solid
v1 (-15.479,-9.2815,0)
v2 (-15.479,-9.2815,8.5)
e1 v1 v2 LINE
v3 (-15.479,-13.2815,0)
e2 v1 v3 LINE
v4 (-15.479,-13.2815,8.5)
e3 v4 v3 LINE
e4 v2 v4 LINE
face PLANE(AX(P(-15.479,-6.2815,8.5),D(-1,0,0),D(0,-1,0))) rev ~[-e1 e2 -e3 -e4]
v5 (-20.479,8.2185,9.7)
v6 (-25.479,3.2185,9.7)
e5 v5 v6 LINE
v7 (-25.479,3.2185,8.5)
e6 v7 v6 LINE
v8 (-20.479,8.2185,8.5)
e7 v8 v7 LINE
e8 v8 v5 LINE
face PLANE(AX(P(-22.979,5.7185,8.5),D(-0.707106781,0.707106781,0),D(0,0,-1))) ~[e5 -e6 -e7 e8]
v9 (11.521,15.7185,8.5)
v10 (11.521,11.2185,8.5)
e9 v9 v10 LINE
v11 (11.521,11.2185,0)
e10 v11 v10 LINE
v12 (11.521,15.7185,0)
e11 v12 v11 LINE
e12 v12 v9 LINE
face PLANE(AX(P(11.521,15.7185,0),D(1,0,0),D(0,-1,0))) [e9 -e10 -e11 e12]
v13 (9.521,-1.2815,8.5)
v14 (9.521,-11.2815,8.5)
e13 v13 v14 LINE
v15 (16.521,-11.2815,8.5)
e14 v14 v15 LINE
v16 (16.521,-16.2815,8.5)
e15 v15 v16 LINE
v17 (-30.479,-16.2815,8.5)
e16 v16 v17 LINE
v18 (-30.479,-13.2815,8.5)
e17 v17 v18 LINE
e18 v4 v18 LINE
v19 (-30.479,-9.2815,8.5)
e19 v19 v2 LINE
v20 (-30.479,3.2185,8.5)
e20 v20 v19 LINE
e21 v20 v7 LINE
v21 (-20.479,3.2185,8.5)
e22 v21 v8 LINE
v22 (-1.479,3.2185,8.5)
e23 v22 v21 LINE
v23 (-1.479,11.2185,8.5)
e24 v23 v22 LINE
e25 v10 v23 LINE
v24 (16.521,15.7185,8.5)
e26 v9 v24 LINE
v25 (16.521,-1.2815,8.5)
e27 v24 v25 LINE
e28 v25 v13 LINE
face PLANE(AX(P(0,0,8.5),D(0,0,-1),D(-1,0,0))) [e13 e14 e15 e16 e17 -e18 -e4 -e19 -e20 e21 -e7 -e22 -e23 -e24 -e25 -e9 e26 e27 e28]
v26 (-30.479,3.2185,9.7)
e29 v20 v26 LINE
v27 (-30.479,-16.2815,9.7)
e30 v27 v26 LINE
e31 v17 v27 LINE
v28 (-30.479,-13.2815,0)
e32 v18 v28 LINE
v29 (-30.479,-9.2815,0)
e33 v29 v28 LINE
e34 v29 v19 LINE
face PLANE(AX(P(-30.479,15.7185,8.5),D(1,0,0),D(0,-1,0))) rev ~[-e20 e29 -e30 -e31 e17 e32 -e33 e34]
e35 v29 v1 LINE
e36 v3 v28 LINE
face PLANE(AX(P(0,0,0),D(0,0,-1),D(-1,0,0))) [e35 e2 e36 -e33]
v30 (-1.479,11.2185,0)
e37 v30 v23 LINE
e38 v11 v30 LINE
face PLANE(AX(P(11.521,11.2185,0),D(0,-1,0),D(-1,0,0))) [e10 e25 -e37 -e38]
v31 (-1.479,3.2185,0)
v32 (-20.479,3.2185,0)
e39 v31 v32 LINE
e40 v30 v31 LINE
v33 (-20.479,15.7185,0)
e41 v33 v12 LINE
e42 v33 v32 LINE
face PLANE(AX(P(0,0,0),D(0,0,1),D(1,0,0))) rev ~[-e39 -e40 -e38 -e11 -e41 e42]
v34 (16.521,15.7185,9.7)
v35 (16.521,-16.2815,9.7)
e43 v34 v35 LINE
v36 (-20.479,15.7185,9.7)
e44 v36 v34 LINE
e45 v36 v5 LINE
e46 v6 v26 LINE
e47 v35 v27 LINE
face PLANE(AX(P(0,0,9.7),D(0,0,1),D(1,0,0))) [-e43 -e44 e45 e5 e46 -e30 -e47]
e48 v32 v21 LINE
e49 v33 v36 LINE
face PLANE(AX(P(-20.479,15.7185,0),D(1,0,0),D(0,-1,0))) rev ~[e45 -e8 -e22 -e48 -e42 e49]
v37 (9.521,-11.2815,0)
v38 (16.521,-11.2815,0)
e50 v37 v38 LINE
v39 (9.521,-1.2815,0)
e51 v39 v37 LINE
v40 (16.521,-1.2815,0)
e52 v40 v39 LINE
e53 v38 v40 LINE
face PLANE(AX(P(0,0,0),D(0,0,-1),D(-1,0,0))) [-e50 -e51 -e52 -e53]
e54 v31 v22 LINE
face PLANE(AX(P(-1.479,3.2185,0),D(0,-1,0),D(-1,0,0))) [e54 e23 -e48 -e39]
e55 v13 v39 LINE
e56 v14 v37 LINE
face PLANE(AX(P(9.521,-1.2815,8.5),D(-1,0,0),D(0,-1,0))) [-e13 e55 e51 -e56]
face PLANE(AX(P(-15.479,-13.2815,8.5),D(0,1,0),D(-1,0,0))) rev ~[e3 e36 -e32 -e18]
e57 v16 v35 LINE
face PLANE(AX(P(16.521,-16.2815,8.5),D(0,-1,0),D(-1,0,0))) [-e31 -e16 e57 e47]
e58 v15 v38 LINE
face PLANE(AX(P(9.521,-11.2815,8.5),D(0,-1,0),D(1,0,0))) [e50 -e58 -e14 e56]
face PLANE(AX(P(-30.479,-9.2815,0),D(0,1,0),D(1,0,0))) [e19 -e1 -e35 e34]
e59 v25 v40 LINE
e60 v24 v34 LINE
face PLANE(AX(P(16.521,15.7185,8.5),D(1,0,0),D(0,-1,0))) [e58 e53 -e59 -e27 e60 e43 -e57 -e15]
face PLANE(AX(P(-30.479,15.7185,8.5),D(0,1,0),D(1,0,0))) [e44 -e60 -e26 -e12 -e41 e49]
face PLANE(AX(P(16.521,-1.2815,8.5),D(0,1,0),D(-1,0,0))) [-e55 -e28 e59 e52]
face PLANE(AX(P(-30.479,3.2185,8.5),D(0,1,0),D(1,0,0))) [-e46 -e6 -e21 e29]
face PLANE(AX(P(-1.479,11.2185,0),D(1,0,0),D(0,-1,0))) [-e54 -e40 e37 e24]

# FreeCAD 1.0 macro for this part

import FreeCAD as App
import Part
import Sketcher
Q = App.Units.Quantity


def edges_at(feature, points):
    """Names of the edges that pass closest to the given points."""
    edges = feature.Shape.Edges
    near = lambda p: min(range(len(edges)), key=lambda i: edges[i].distToShape(Part.Vertex(*p))[0])
    return sorted({f"Edge{near(p) + 1}" for p in points})

doc = App.newDocument("Part")
params = doc.addObject("Spreadsheet::Sheet", "Params")
for row, (alias, value) in enumerate([
    ("sketch1_width", "42 mm"),
    ("sketch1_width2", "29 mm"),
    ("sketch1_height", "8 mm"),
    ("sketch1_height2", "4.5 mm"),
    ("pad1_length", "8.5 mm"),
    ("sketch2_width", "47 mm"),
    ("sketch2_height", "32 mm"),
    ("pad2_length", "1.2 mm"),
    ("sketch3_width", "15 mm"),
    ("sketch3_height", "7 mm"),
    ("pad3_length", "8.5 mm"),
    ("sketch4_width", "7 mm"),
    ("sketch4_height", "10 mm"),
    ("pad4_length", "8.5 mm"),
    ("sketch5_width", "10 mm"),
    ("sketch5_height", "12.5 mm"),
    ("pocket1_length", "8.5 mm"),
    ("sketch6_height", "3 mm"),
    ("sketch6_width", "15 mm"),
    ("pocket2_length", "8.5 mm"),
    ("sketch7_width", "10 mm"),
    ("sketch7_height", "12.5 mm"),
    ("pocket3_length", "8.5 mm"),
    ("chamfer_size", "5 mm"),
], start=1):
    params.set(f"A{row}", alias)
    params.set(f"B{row}", "=" + value)
    params.setAlias(f"B{row}", alias)

body = doc.addObject("PartDesign::Body", "Body")

# Sketch on XY plane
sketch1 = body.newObject("Sketcher::SketchObject", "Sketch")
sketch1.AttachmentSupport = (doc.getObject("XY_Plane"), [""])
sketch1.MapMode = "FlatFace"
sketch1.addGeometry(Part.LineSegment(App.Vector(11.521, 15.7185, 0), App.Vector(-30.479, 15.7185, 0)), False)
sketch1.addGeometry(Part.LineSegment(App.Vector(-30.479, 15.7185, 0), App.Vector(-30.479, 3.2185, 0)), False)
sketch1.addGeometry(Part.LineSegment(App.Vector(-30.479, 3.2185, 0), App.Vector(-1.479, 3.2185, 0)), False)
sketch1.addGeometry(Part.LineSegment(App.Vector(-1.479, 3.2185, 0), App.Vector(-1.479, 11.2185, 0)), False)
sketch1.addGeometry(Part.LineSegment(App.Vector(-1.479, 11.2185, 0), App.Vector(11.521, 11.2185, 0)), False)
sketch1.addGeometry(Part.LineSegment(App.Vector(11.521, 11.2185, 0), App.Vector(11.521, 15.7185, 0)), False)
sketch1.addConstraint(Sketcher.Constraint("Coincident", 0, 2, 1, 1))
sketch1.addConstraint(Sketcher.Constraint("Coincident", 1, 2, 2, 1))
sketch1.addConstraint(Sketcher.Constraint("Coincident", 2, 2, 3, 1))
sketch1.addConstraint(Sketcher.Constraint("Coincident", 3, 2, 4, 1))
sketch1.addConstraint(Sketcher.Constraint("Coincident", 4, 2, 5, 1))
sketch1.addConstraint(Sketcher.Constraint("Coincident", 5, 2, 0, 1))
sketch1.addConstraint(Sketcher.Constraint("Horizontal", 0))
sketch1.addConstraint(Sketcher.Constraint("Vertical", 1))
sketch1.addConstraint(Sketcher.Constraint("Horizontal", 2))
sketch1.addConstraint(Sketcher.Constraint("Vertical", 3))
sketch1.addConstraint(Sketcher.Constraint("Horizontal", 4))
sketch1.addConstraint(Sketcher.Constraint("Vertical", 5))
sketch1.addConstraint(Sketcher.Constraint("DistanceX", 0, 2, 0, 1, Q("42 mm")))
sketch1.addConstraint(Sketcher.Constraint("DistanceX", 2, 1, 2, 2, Q("29 mm")))
sketch1.addConstraint(Sketcher.Constraint("DistanceY", 3, 1, 3, 2, Q("8 mm")))
sketch1.addConstraint(Sketcher.Constraint("DistanceY", 5, 1, 5, 2, Q("4.5 mm")))
sketch1.addConstraint(Sketcher.Constraint("DistanceX", 0, 2, -1, 1, Q("30.479 mm")))
sketch1.addConstraint(Sketcher.Constraint("DistanceY", -1, 1, 0, 2, Q("15.7185 mm")))
sketch1.setExpression("Constraints[12]", "Params.sketch1_width")
sketch1.setExpression("Constraints[13]", "Params.sketch1_width2")
sketch1.setExpression("Constraints[14]", "Params.sketch1_height")
sketch1.setExpression("Constraints[15]", "Params.sketch1_height2")
pad1 = body.newObject("PartDesign::Pad", "Pad")
pad1.Profile = sketch1
pad1.setExpression("Length", "Params.pad1_length")

# Sketch on XY plane
sketch2 = body.newObject("Sketcher::SketchObject", "Sketch001")
sketch2.AttachmentSupport = (doc.getObject("XY_Plane"), [""])
sketch2.MapMode = "FlatFace"
sketch2.AttachmentOffset = App.Placement(App.Vector(0, 0, 8.5), App.Rotation())
sketch2.addGeometry(Part.LineSegment(App.Vector(16.521, 15.7185, 0), App.Vector(-30.479, 15.7185, 0)), False)
sketch2.addGeometry(Part.LineSegment(App.Vector(-30.479, 15.7185, 0), App.Vector(-30.479, -16.2815, 0)), False)
sketch2.addGeometry(Part.LineSegment(App.Vector(-30.479, -16.2815, 0), App.Vector(16.521, -16.2815, 0)), False)
sketch2.addGeometry(Part.LineSegment(App.Vector(16.521, -16.2815, 0), App.Vector(16.521, 15.7185, 0)), False)
sketch2.addConstraint(Sketcher.Constraint("Coincident", 0, 2, 1, 1))
sketch2.addConstraint(Sketcher.Constraint("Coincident", 1, 2, 2, 1))
sketch2.addConstraint(Sketcher.Constraint("Coincident", 2, 2, 3, 1))
sketch2.addConstraint(Sketcher.Constraint("Coincident", 3, 2, 0, 1))
sketch2.addConstraint(Sketcher.Constraint("Horizontal", 0))
sketch2.addConstraint(Sketcher.Constraint("Vertical", 1))
sketch2.addConstraint(Sketcher.Constraint("Horizontal", 2))
sketch2.addConstraint(Sketcher.Constraint("Vertical", 3))
sketch2.addConstraint(Sketcher.Constraint("DistanceX", 0, 2, 0, 1, Q("47 mm")))
sketch2.addConstraint(Sketcher.Constraint("DistanceY", 1, 2, 1, 1, Q("32 mm")))
sketch2.addConstraint(Sketcher.Constraint("DistanceX", 0, 2, -1, 1, Q("30.479 mm")))
sketch2.addConstraint(Sketcher.Constraint("DistanceY", -1, 1, 0, 2, Q("15.7185 mm")))
sketch2.setExpression("Constraints[8]", "Params.sketch2_width")
sketch2.setExpression("Constraints[9]", "Params.sketch2_height")
pad2 = body.newObject("PartDesign::Pad", "Pad001")
pad2.Profile = sketch2
pad2.setExpression("Length", "Params.pad2_length")

# Sketch on XY plane
sketch3 = body.newObject("Sketcher::SketchObject", "Sketch002")
sketch3.AttachmentSupport = (doc.getObject("XY_Plane"), [""])
sketch3.MapMode = "FlatFace"
sketch3.AttachmentOffset = App.Placement(App.Vector(0, 0, 8.5), App.Rotation())
sketch3.addGeometry(Part.LineSegment(App.Vector(-30.479, -13.2815, 0), App.Vector(-30.479, -6.2815, 0)), False)
sketch3.addGeometry(Part.LineSegment(App.Vector(-30.479, -6.2815, 0), App.Vector(-15.479, -6.2815, 0)), False)
sketch3.addGeometry(Part.LineSegment(App.Vector(-15.479, -6.2815, 0), App.Vector(-15.479, -13.2815, 0)), False)
sketch3.addGeometry(Part.LineSegment(App.Vector(-15.479, -13.2815, 0), App.Vector(-30.479, -13.2815, 0)), False)
sketch3.addConstraint(Sketcher.Constraint("Coincident", 0, 2, 1, 1))
sketch3.addConstraint(Sketcher.Constraint("Coincident", 1, 2, 2, 1))
sketch3.addConstraint(Sketcher.Constraint("Coincident", 2, 2, 3, 1))
sketch3.addConstraint(Sketcher.Constraint("Coincident", 3, 2, 0, 1))
sketch3.addConstraint(Sketcher.Constraint("Vertical", 0))
sketch3.addConstraint(Sketcher.Constraint("Horizontal", 1))
sketch3.addConstraint(Sketcher.Constraint("Vertical", 2))
sketch3.addConstraint(Sketcher.Constraint("Horizontal", 3))
sketch3.addConstraint(Sketcher.Constraint("DistanceX", 1, 1, 1, 2, Q("15 mm")))
sketch3.addConstraint(Sketcher.Constraint("DistanceY", 0, 1, 0, 2, Q("7 mm")))
sketch3.addConstraint(Sketcher.Constraint("DistanceX", 0, 2, -1, 1, Q("30.479 mm")))
sketch3.addConstraint(Sketcher.Constraint("DistanceY", 0, 2, -1, 1, Q("6.2815 mm")))
sketch3.setExpression("Constraints[8]", "Params.sketch3_width")
sketch3.setExpression("Constraints[9]", "Params.sketch3_height")
pad3 = body.newObject("PartDesign::Pad", "Pad002")
pad3.Profile = sketch3
pad3.setExpression("Length", "Params.pad3_length")
pad3.Reversed = True

# Sketch on XY plane
sketch4 = body.newObject("Sketcher::SketchObject", "Sketch003")
sketch4.AttachmentSupport = (doc.getObject("XY_Plane"), [""])
sketch4.MapMode = "FlatFace"
sketch4.AttachmentOffset = App.Placement(App.Vector(0, 0, 8.5), App.Rotation())
sketch4.addGeometry(Part.LineSegment(App.Vector(16.521, -1.2815, 0), App.Vector(16.521, -11.2815, 0)), False)
sketch4.addGeometry(Part.LineSegment(App.Vector(16.521, -11.2815, 0), App.Vector(9.521, -11.2815, 0)), False)
sketch4.addGeometry(Part.LineSegment(App.Vector(9.521, -11.2815, 0), App.Vector(9.521, -1.2815, 0)), False)
sketch4.addGeometry(Part.LineSegment(App.Vector(9.521, -1.2815, 0), App.Vector(16.521, -1.2815, 0)), False)
sketch4.addConstraint(Sketcher.Constraint("Coincident", 0, 2, 1, 1))
sketch4.addConstraint(Sketcher.Constraint("Coincident", 1, 2, 2, 1))
sketch4.addConstraint(Sketcher.Constraint("Coincident", 2, 2, 3, 1))
sketch4.addConstraint(Sketcher.Constraint("Coincident", 3, 2, 0, 1))
sketch4.addConstraint(Sketcher.Constraint("Vertical", 0))
sketch4.addConstraint(Sketcher.Constraint("Horizontal", 1))
sketch4.addConstraint(Sketcher.Constraint("Vertical", 2))
sketch4.addConstraint(Sketcher.Constraint("Horizontal", 3))
sketch4.addConstraint(Sketcher.Constraint("DistanceX", 1, 2, 1, 1, Q("7 mm")))
sketch4.addConstraint(Sketcher.Constraint("DistanceY", 0, 2, 0, 1, Q("10 mm")))
sketch4.addConstraint(Sketcher.Constraint("DistanceX", -1, 1, 0, 2, Q("16.521 mm")))
sketch4.addConstraint(Sketcher.Constraint("DistanceY", 0, 2, -1, 1, Q("11.2815 mm")))
sketch4.setExpression("Constraints[8]", "Params.sketch4_width")
sketch4.setExpression("Constraints[9]", "Params.sketch4_height")
pad4 = body.newObject("PartDesign::Pad", "Pad003")
pad4.Profile = sketch4
pad4.setExpression("Length", "Params.pad4_length")
pad4.Reversed = True

# Sketch on XY plane
sketch5 = body.newObject("Sketcher::SketchObject", "Sketch004")
sketch5.AttachmentSupport = (doc.getObject("XY_Plane"), [""])
sketch5.MapMode = "FlatFace"
sketch5.addGeometry(Part.LineSegment(App.Vector(-30.479, 15.7185, 0), App.Vector(-20.479, 15.7185, 0)), False)
sketch5.addGeometry(Part.LineSegment(App.Vector(-20.479, 15.7185, 0), App.Vector(-20.479, 3.2185, 0)), False)
sketch5.addGeometry(Part.LineSegment(App.Vector(-20.479, 3.2185, 0), App.Vector(-30.479, 3.2185, 0)), False)
sketch5.addGeometry(Part.LineSegment(App.Vector(-30.479, 3.2185, 0), App.Vector(-30.479, 15.7185, 0)), False)
sketch5.addConstraint(Sketcher.Constraint("Coincident", 0, 2, 1, 1))
sketch5.addConstraint(Sketcher.Constraint("Coincident", 1, 2, 2, 1))
sketch5.addConstraint(Sketcher.Constraint("Coincident", 2, 2, 3, 1))
sketch5.addConstraint(Sketcher.Constraint("Coincident", 3, 2, 0, 1))
sketch5.addConstraint(Sketcher.Constraint("Horizontal", 0))
sketch5.addConstraint(Sketcher.Constraint("Vertical", 1))
sketch5.addConstraint(Sketcher.Constraint("Horizontal", 2))
sketch5.addConstraint(Sketcher.Constraint("Vertical", 3))
sketch5.addConstraint(Sketcher.Constraint("DistanceX", 0, 1, 0, 2, Q("10 mm")))
sketch5.addConstraint(Sketcher.Constraint("DistanceY", 1, 2, 1, 1, Q("12.5 mm")))
sketch5.addConstraint(Sketcher.Constraint("DistanceX", 0, 2, -1, 1, Q("20.479 mm")))
sketch5.addConstraint(Sketcher.Constraint("DistanceY", -1, 1, 0, 2, Q("15.7185 mm")))
sketch5.setExpression("Constraints[8]", "Params.sketch5_width")
sketch5.setExpression("Constraints[9]", "Params.sketch5_height")
pocket1 = body.newObject("PartDesign::Pocket", "Pocket")
pocket1.Profile = sketch5
pocket1.setExpression("Length", "Params.pocket1_length")
pocket1.Reversed = True

# Sketch on XY plane
sketch6 = body.newObject("Sketcher::SketchObject", "Sketch005")
sketch6.AttachmentSupport = (doc.getObject("XY_Plane"), [""])
sketch6.MapMode = "FlatFace"
sketch6.addGeometry(Part.LineSegment(App.Vector(-30.479, -6.2815, 0), App.Vector(-15.479, -6.2815, 0)), False)
sketch6.addGeometry(Part.LineSegment(App.Vector(-15.479, -6.2815, 0), App.Vector(-15.479, -9.2815, 0)), False)
sketch6.addGeometry(Part.LineSegment(App.Vector(-15.479, -9.2815, 0), App.Vector(-30.479, -9.2815, 0)), False)
sketch6.addGeometry(Part.LineSegment(App.Vector(-30.479, -9.2815, 0), App.Vector(-30.479, -6.2815, 0)), False)
sketch6.addConstraint(Sketcher.Constraint("Coincident", 0, 2, 1, 1))
sketch6.addConstraint(Sketcher.Constraint("Coincident", 1, 2, 2, 1))
sketch6.addConstraint(Sketcher.Constraint("Coincident", 2, 2, 3, 1))
sketch6.addConstraint(Sketcher.Constraint("Coincident", 3, 2, 0, 1))
sketch6.addConstraint(Sketcher.Constraint("Horizontal", 0))
sketch6.addConstraint(Sketcher.Constraint("Vertical", 1))
sketch6.addConstraint(Sketcher.Constraint("Horizontal", 2))
sketch6.addConstraint(Sketcher.Constraint("Vertical", 3))
sketch6.addConstraint(Sketcher.Constraint("DistanceY", 1, 2, 1, 1, Q("3 mm")))
sketch6.addConstraint(Sketcher.Constraint("DistanceX", 0, 1, 0, 2, Q("15 mm")))
sketch6.addConstraint(Sketcher.Constraint("DistanceX", 0, 2, -1, 1, Q("15.479 mm")))
sketch6.addConstraint(Sketcher.Constraint("DistanceY", 0, 2, -1, 1, Q("6.2815 mm")))
sketch6.setExpression("Constraints[8]", "Params.sketch6_height")
sketch6.setExpression("Constraints[9]", "Params.sketch6_width")
pocket2 = body.newObject("PartDesign::Pocket", "Pocket001")
pocket2.Profile = sketch6
pocket2.setExpression("Length", "Params.pocket2_length")
pocket2.Reversed = True

# Sketch on XY plane
sketch7 = body.newObject("Sketcher::SketchObject", "Sketch006")
sketch7.AttachmentSupport = (doc.getObject("XY_Plane"), [""])
sketch7.MapMode = "FlatFace"
sketch7.AttachmentOffset = App.Placement(App.Vector(0, 0, 8.5), App.Rotation())
sketch7.addGeometry(Part.LineSegment(App.Vector(-30.479, 15.7185, 0), App.Vector(-20.479, 15.7185, 0)), False)
sketch7.addGeometry(Part.LineSegment(App.Vector(-20.479, 15.7185, 0), App.Vector(-20.479, 3.2185, 0)), False)
sketch7.addGeometry(Part.LineSegment(App.Vector(-20.479, 3.2185, 0), App.Vector(-30.479, 3.2185, 0)), False)
sketch7.addGeometry(Part.LineSegment(App.Vector(-30.479, 3.2185, 0), App.Vector(-30.479, 15.7185, 0)), False)
sketch7.addConstraint(Sketcher.Constraint("Coincident", 0, 2, 1, 1))
sketch7.addConstraint(Sketcher.Constraint("Coincident", 1, 2, 2, 1))
sketch7.addConstraint(Sketcher.Constraint("Coincident", 2, 2, 3, 1))
sketch7.addConstraint(Sketcher.Constraint("Coincident", 3, 2, 0, 1))
sketch7.addConstraint(Sketcher.Constraint("Horizontal", 0))
sketch7.addConstraint(Sketcher.Constraint("Vertical", 1))
sketch7.addConstraint(Sketcher.Constraint("Horizontal", 2))
sketch7.addConstraint(Sketcher.Constraint("Vertical", 3))
sketch7.addConstraint(Sketcher.Constraint("DistanceX", 0, 1, 0, 2, Q("10 mm")))
sketch7.addConstraint(Sketcher.Constraint("DistanceY", 1, 2, 1, 1, Q("12.5 mm")))
sketch7.addConstraint(Sketcher.Constraint("DistanceX", 0, 2, -1, 1, Q("20.479 mm")))
sketch7.addConstraint(Sketcher.Constraint("DistanceY", -1, 1, 0, 2, Q("15.7185 mm")))
sketch7.setExpression("Constraints[8]", "Params.sketch7_width")
sketch7.setExpression("Constraints[9]", "Params.sketch7_height")
pocket3 = body.newObject("PartDesign::Pocket", "Pocket002")
pocket3.Profile = sketch7
pocket3.setExpression("Length", "Params.pocket3_length")
pocket3.Reversed = True
doc.recompute()

chamfer = body.newObject("PartDesign::Chamfer", "Chamfer")
chamfer.Base = (pocket3, edges_at(pocket3, [(-20.479, 3.219, 9.1)]))
chamfer.setExpression("Size", "Params.chamfer_size")

doc.recompute()
